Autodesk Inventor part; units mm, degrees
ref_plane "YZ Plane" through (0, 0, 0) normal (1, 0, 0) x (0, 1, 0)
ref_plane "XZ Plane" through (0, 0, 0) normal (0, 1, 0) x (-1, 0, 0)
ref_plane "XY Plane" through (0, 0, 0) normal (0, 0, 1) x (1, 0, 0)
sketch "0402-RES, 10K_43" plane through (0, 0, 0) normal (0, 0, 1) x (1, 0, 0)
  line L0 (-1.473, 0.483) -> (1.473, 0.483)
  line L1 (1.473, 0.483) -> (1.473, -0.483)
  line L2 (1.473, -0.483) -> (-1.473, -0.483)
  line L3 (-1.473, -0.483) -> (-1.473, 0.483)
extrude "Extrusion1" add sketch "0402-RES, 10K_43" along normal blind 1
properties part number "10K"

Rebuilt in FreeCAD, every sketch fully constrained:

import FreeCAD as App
import Part
import Sketcher
from FreeCAD import Vector
Q = App.Units.Quantity

doc = App.newDocument("Part")
params = doc.addObject("Spreadsheet::Sheet", "Params")
for row, (alias, value) in enumerate([
    ("pad1_length", "1 mm"),
], start=1):
    params.set(f"A{row}", alias)
    params.set(f"B{row}", "=" + value)
    params.setAlias(f"B{row}", alias)

body = doc.addObject("PartDesign::Body", "Body")

# Sketch on XY plane
sketch1 = body.newObject("Sketcher::SketchObject", "Sketch")
sketch1.AttachmentSupport = (doc.getObject("XY_Plane"), [""])
sketch1.MapMode = "FlatFace"
sketch1.addGeometry(Part.LineSegment(Vector(1.5, 0.5, 0), Vector(-1.5, 0.5, 0)), False)
sketch1.addGeometry(Part.LineSegment(Vector(-1.5, 0.5, 0), Vector(-1.5, -0.5, 0)), False)
sketch1.addGeometry(Part.LineSegment(Vector(-1.5, -0.5, 0), Vector(1.5, -0.5, 0)), False)
sketch1.addGeometry(Part.LineSegment(Vector(1.5, -0.5, 0), Vector(1.5, 0.5, 0)), False)
sketch1.addConstraint(Sketcher.Constraint("Coincident", 0, 2, 1, 1))
sketch1.addConstraint(Sketcher.Constraint("Coincident", 1, 2, 2, 1))
sketch1.addConstraint(Sketcher.Constraint("Coincident", 2, 2, 3, 1))
sketch1.addConstraint(Sketcher.Constraint("Coincident", 3, 2, 0, 1))
sketch1.addConstraint(Sketcher.Constraint("Horizontal", 0))
sketch1.addConstraint(Sketcher.Constraint("Vertical", 1))
sketch1.addConstraint(Sketcher.Constraint("Horizontal", 2))
sketch1.addConstraint(Sketcher.Constraint("Vertical", 3))
sketch1.addConstraint(Sketcher.Constraint("Symmetric", 0, 2, 2, 2, -1, 1))
sketch1.addConstraint(Sketcher.Constraint("DistanceX", 0, 2, 0, 1, Q("2.946 mm")))
sketch1.addConstraint(Sketcher.Constraint("DistanceY", 1, 2, 1, 1, Q("0.966 mm")))
pad1 = body.newObject("PartDesign::Pad", "Pad")
pad1.Profile = sketch1
pad1.setExpression("Length", "Params.pad1_length")

doc.recompute()
